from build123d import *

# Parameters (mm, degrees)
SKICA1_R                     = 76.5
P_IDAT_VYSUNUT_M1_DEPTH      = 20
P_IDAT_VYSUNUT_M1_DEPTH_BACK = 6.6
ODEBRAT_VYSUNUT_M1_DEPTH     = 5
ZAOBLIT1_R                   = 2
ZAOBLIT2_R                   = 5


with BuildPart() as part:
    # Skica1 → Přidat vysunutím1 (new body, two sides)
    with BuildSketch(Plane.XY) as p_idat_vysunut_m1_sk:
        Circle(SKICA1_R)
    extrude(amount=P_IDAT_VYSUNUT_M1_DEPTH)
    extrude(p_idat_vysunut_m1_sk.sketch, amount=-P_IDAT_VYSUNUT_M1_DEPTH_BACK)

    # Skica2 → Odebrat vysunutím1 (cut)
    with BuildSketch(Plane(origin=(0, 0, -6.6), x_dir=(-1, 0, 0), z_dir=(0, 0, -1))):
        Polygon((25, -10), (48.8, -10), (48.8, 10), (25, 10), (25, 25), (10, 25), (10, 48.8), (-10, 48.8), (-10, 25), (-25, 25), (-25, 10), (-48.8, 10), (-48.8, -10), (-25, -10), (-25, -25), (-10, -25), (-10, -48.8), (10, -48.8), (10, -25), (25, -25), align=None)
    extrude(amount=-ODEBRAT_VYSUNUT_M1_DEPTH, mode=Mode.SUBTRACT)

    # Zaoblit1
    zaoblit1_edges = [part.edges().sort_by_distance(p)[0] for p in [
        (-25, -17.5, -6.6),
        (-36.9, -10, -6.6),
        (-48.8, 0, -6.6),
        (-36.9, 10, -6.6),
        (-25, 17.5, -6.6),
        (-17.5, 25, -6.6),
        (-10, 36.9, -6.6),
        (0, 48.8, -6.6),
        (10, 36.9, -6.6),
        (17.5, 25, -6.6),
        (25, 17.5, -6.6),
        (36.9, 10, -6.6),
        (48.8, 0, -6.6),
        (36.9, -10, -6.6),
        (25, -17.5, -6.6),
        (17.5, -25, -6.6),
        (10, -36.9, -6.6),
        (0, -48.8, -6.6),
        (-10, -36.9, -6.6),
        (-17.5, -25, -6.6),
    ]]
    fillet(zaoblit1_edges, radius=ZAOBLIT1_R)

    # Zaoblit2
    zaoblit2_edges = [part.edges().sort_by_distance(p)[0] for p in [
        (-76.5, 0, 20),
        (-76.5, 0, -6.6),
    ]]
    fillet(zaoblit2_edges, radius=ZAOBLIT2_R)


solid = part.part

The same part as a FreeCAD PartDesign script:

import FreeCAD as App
import Part
import Sketcher

V = App.Vector
Q = App.Units.Quantity


def edges_at(feature, points):
    """Names of the edges that pass closest to the given points."""
    edges = feature.Shape.Edges
    near = lambda p: min(range(len(edges)), key=lambda i: edges[i].distToShape(Part.Vertex(*p))[0])
    return sorted({f"Edge{near(p) + 1}" for p in points})


def add_polygon(sketch, points):
    """Adds a closed chain of lines whose ends are joined by coincident constraints."""
    first, n = sketch.GeometryCount, len(points)
    for a, b in zip(points, points[1:] + points[:1]):
        sketch.addGeometry(Part.LineSegment(App.Vector(*a, 0), App.Vector(*b, 0)), False)
    for i in range(n):
        sketch.addConstraint(Sketcher.Constraint("Coincident", first + i, 2, first + (i + 1) % n, 1))

doc = App.newDocument("Part")
body = doc.addObject("PartDesign::Body", "Body")

# Sketch on XY plane
sketch1 = doc.addObject("Sketcher::SketchObject", "Sketch")
body.addObject(sketch1)
sketch1.AttachmentSupport = (doc.XY_Plane, [""])
sketch1.MapMode = "FlatFace"
sketch1.addGeometry(Part.Circle(V(0, 0, 0), V(0, 0, 1), 76), False)
sketch1.addConstraint(Sketcher.Constraint("Coincident", 0, 3, -1, 1))
sketch1.addConstraint(Sketcher.Constraint("Diameter", 0, Q("153 mm")))
pad1 = doc.addObject("PartDesign::Pad", "Pad")
body.addObject(pad1)
pad1.Profile = sketch1
pad1.Type = "TwoLengths"
pad1.Length = 20
pad1.Length2 = 6.6

# Sketch on XY plane
sketch2 = doc.addObject("Sketcher::SketchObject", "Sketch001")
body.addObject(sketch2)
sketch2.AttachmentSupport = (doc.XY_Plane, [""])
sketch2.MapMode = "FlatFace"
sketch2.AttachmentOffset = App.Placement(V(0, 0, -6.6), App.Rotation())
add_polygon(sketch2, [(-25, -10), (-49, -10), (-49, 10), (-25, 10), (-25, 25), (-10, 25), (-10, 49), (10, 49), (10, 25), (25, 25), (25, 10), (49, 10), (49, -10), (25, -10), (25, -25), (10, -25), (10, -49), (-10, -49), (-10, -25), (-25, -25)])  # lines 0-19
sketch2.addConstraint(Sketcher.Constraint("Horizontal", 0))
sketch2.addConstraint(Sketcher.Constraint("Vertical", 1))
sketch2.addConstraint(Sketcher.Constraint("Horizontal", 2))
sketch2.addConstraint(Sketcher.Constraint("Vertical", 3))
sketch2.addConstraint(Sketcher.Constraint("Horizontal", 4))
sketch2.addConstraint(Sketcher.Constraint("Vertical", 5))
sketch2.addConstraint(Sketcher.Constraint("Horizontal", 6))
sketch2.addConstraint(Sketcher.Constraint("Vertical", 7))
sketch2.addConstraint(Sketcher.Constraint("Horizontal", 8))
sketch2.addConstraint(Sketcher.Constraint("Vertical", 9))
sketch2.addConstraint(Sketcher.Constraint("Horizontal", 10))
sketch2.addConstraint(Sketcher.Constraint("Vertical", 11))
sketch2.addConstraint(Sketcher.Constraint("Horizontal", 12))
sketch2.addConstraint(Sketcher.Constraint("Vertical", 13))
sketch2.addConstraint(Sketcher.Constraint("Horizontal", 14))
sketch2.addConstraint(Sketcher.Constraint("Vertical", 15))
sketch2.addConstraint(Sketcher.Constraint("Horizontal", 16))
sketch2.addConstraint(Sketcher.Constraint("Vertical", 17))
sketch2.addConstraint(Sketcher.Constraint("Horizontal", 18))
sketch2.addConstraint(Sketcher.Constraint("Vertical", 19))
sketch2.addConstraint(Sketcher.Constraint("Symmetric", 0, 2, 10, 2, -1, 1))
sketch2.addConstraint(Sketcher.Constraint("Symmetric", 2, 2, 12, 2, -1, 1))
sketch2.addConstraint(Sketcher.Constraint("Symmetric", 4, 2, 14, 2, -1, 1))
sketch2.addConstraint(Sketcher.Constraint("Symmetric", 6, 2, 16, 2, -1, 1))
sketch2.addConstraint(Sketcher.Constraint("Symmetric", 8, 2, 18, 2, -1, 1))
sketch2.addConstraint(Sketcher.Constraint("Symmetric", 4, 2, 7, 2, -2))
sketch2.addConstraint(Sketcher.Constraint("Symmetric", 2, 2, 9, 2, -2))
sketch2.addConstraint(Sketcher.Constraint("Equal", 16, 1))
sketch2.addConstraint(Sketcher.Constraint("Equal", 18, 3))
sketch2.addConstraint(Sketcher.Constraint("Equal", 12, 5))
sketch2.addConstraint(Sketcher.Constraint("DistanceX", 4, 1, 4, 2, Q("15 mm")))
sketch2.addConstraint(Sketcher.Constraint("DistanceX", 6, 1, 6, 2, Q("20 mm")))
sketch2.addConstraint(Sketcher.Constraint("DistanceX", 0, 2, 0, 1, Q("23.8 mm")))
pocket1 = doc.addObject("PartDesign::Pocket", "Pocket")
body.addObject(pocket1)
pocket1.Profile = sketch2
pocket1.Length = 5
pocket1.Reversed = True
doc.recompute()

fillet = doc.addObject("PartDesign::Fillet", "Fillet")
body.addObject(fillet)
fillet.Base = (pocket1, edges_at(pocket1, [
    (-25, -17.5, -6.6),
    (-36.9, -10, -6.6),
    (-48.8, 0, -6.6),
    (-36.9, 10, -6.6),
    (-25, 17.5, -6.6),
    (-17.5, 25, -6.6),
    (-10, 36.9, -6.6),
    (0, 48.8, -6.6),
    (10, 36.9, -6.6),
    (17.5, 25, -6.6),
    (25, 17.5, -6.6),
    (36.9, 10, -6.6),
    (48.8, 0, -6.6),
    (36.9, -10, -6.6),
    (25, -17.5, -6.6),
    (17.5, -25, -6.6),
    (10, -36.9, -6.6),
    (0, -48.8, -6.6),
    (-10, -36.9, -6.6),
    (-17.5, -25, -6.6),
]))
fillet.Radius = 2
doc.recompute()

fillet2 = doc.addObject("PartDesign::Fillet", "Fillet001")
body.addObject(fillet2)
fillet2.Base = (fillet, edges_at(fillet, [(-76.5, 0, 20), (-76.5, 0, -6.6)]))
fillet2.Radius = 5

doc.recompute()
